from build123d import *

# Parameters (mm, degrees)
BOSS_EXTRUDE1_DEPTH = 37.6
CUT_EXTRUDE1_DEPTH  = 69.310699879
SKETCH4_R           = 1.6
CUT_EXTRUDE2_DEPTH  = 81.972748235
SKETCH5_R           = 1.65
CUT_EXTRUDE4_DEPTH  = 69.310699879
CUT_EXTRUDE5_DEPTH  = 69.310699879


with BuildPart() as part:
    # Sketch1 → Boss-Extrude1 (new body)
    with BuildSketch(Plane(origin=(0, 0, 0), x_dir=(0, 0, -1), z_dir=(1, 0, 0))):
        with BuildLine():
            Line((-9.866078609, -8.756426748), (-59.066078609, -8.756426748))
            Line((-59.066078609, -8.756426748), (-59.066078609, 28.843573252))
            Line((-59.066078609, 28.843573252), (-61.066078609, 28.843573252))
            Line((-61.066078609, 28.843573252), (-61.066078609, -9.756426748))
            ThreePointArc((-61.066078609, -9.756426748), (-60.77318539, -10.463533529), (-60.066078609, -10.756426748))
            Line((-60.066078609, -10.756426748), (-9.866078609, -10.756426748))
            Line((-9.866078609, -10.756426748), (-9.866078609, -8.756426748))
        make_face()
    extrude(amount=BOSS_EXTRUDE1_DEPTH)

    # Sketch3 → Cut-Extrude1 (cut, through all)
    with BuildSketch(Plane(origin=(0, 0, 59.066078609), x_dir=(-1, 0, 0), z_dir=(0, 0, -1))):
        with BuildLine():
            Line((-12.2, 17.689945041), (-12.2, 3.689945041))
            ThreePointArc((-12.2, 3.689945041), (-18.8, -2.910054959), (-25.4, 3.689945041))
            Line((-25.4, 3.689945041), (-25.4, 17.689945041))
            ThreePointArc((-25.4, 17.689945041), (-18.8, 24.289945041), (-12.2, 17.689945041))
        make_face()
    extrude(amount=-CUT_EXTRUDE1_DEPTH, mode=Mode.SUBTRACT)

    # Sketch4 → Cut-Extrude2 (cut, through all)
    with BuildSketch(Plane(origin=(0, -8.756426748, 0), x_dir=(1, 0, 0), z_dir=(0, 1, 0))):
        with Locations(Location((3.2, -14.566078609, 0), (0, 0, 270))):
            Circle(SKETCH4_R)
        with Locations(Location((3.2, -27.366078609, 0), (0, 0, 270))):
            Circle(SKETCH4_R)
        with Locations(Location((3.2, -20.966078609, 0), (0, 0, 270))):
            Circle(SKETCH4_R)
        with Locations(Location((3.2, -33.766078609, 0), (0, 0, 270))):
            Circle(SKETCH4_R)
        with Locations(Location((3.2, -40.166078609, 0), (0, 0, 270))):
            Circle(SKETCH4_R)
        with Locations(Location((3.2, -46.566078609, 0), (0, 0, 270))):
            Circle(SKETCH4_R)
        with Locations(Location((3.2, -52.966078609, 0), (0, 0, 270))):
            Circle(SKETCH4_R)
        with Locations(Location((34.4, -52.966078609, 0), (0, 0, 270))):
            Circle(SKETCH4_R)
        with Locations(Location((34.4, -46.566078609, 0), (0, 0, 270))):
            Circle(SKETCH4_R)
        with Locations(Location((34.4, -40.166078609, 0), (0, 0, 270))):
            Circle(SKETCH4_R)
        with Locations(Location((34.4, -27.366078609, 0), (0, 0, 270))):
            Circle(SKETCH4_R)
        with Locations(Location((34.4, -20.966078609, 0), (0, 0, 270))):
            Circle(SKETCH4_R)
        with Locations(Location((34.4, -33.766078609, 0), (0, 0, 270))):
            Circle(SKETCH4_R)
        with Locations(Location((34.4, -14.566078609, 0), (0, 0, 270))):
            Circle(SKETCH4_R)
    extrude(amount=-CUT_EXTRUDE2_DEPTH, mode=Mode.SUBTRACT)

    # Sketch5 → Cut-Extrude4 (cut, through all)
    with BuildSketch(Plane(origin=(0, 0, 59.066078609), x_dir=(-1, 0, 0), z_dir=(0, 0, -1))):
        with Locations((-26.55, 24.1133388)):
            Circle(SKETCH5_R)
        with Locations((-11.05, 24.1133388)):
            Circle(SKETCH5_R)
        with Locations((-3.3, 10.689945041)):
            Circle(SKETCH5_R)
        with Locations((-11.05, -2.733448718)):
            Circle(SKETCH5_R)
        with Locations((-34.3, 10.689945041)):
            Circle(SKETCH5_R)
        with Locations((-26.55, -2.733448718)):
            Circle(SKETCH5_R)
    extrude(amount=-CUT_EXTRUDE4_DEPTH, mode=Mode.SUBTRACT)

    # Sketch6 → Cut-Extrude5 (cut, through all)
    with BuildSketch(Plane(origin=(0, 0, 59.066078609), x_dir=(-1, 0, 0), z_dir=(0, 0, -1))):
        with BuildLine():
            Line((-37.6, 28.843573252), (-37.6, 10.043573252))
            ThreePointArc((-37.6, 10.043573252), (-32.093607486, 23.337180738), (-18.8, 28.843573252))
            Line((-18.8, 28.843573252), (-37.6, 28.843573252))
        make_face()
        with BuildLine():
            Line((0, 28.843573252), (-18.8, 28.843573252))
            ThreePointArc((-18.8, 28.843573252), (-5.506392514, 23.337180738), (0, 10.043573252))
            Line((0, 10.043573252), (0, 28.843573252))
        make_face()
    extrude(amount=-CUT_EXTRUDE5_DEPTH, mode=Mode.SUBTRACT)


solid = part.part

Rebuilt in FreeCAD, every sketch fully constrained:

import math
import FreeCAD as App
import Part
import Sketcher
from FreeCAD import Vector

doc = App.newDocument("Part")
body = doc.addObject("PartDesign::Body", "Body")

sketch1 = body.newObject("Sketcher::SketchObject", "Sketch")
sketch1.AttachmentSupport = (doc.getObject("YZ_Plane"), [""])
sketch1.MapMode = "FlatFace"
sketch1.addGeometry(Part.LineSegment(Vector(-8.756427, 9.866079, 0), Vector(-8.756427, 59.066079, 0)), False)
sketch1.addGeometry(Part.LineSegment(Vector(-8.756427, 59.066079, 0), Vector(28.843573, 59.066079, 0)), False)
sketch1.addGeometry(Part.LineSegment(Vector(28.843573, 59.066079, 0), Vector(28.843573, 61.066079, 0)), False)
sketch1.addGeometry(Part.LineSegment(Vector(28.843573, 61.066079, 0), Vector(-9.756427, 61.066079, 0)), False)
sketch1.addGeometry(Part.ArcOfCircle(Part.Circle(Vector(-9.756427, 60.066079, 0), Vector(0, 0, 1), 1), math.radians(90), math.radians(180)), False)
sketch1.addGeometry(Part.LineSegment(Vector(-10.756427, 60.066079, 0), Vector(-10.756427, 9.866079, 0)), False)
sketch1.addGeometry(Part.LineSegment(Vector(-10.756427, 9.866079, 0), Vector(-8.756427, 9.866079, 0)), False)
sketch1.addConstraint(Sketcher.Constraint("Coincident", 0, 2, 1, 1))
sketch1.addConstraint(Sketcher.Constraint("Coincident", 1, 2, 2, 1))
sketch1.addConstraint(Sketcher.Constraint("Coincident", 2, 2, 3, 1))
sketch1.addConstraint(Sketcher.Constraint("Tangent", 3, 2, 4, 1))
sketch1.addConstraint(Sketcher.Constraint("Tangent", 4, 2, 5, 1))
sketch1.addConstraint(Sketcher.Constraint("Coincident", 5, 2, 6, 1))
sketch1.addConstraint(Sketcher.Constraint("Coincident", 6, 2, 0, 1))
sketch1.addConstraint(Sketcher.Constraint("Vertical", 0))
sketch1.addConstraint(Sketcher.Constraint("Horizontal", 1))
sketch1.addConstraint(Sketcher.Constraint("Vertical", 2))
sketch1.addConstraint(Sketcher.Constraint("Horizontal", 3))
sketch1.addConstraint(Sketcher.Constraint("Vertical", 5))
sketch1.addConstraint(Sketcher.Constraint("Horizontal", 6))
sketch1.addConstraint(Sketcher.Constraint("Equal", 6, 2))
sketch1.addConstraint(Sketcher.Constraint("Radius", 4, 1.0))
sketch1.addConstraint(Sketcher.Constraint("DistanceX", 6, 1, 6, 2, 2.0))
sketch1.addConstraint(Sketcher.Constraint("DistanceX", 1, 1, 1, 2, 37.6))
sketch1.addConstraint(Sketcher.Constraint("DistanceY", 0, 1, 0, 2, 49.2))
sketch1.addConstraint(Sketcher.Constraint("DistanceY", -1, 1, 4, 3, 60.066079))
sketch1.addConstraint(Sketcher.Constraint("DistanceX", 4, 3, -1, 1, 9.756427))
pad1 = body.newObject("PartDesign::Pad", "Pad")
pad1.Profile = sketch1
pad1.Length = 37.6

sketch2 = body.newObject("Sketcher::SketchObject", "Sketch001")
sketch2.AttachmentSupport = (doc.getObject("XY_Plane"), [""])
sketch2.MapMode = "FlatFace"
sketch2.AttachmentOffset = App.Placement(Vector(0, 0, 59.066079), App.Rotation())
sketch2.addGeometry(Part.LineSegment(Vector(12.2, 3.689945, 0), Vector(12.2, 17.689945, 0)), False)
sketch2.addGeometry(Part.ArcOfCircle(Part.Circle(Vector(18.8, 17.689945, 0), Vector(0, 0, 1), 6.6), math.radians(0), math.radians(180)), False)
sketch2.addGeometry(Part.LineSegment(Vector(25.4, 17.689945, 0), Vector(25.4, 3.689945, 0)), False)
sketch2.addGeometry(Part.ArcOfCircle(Part.Circle(Vector(18.8, 3.689945, 0), Vector(0, 0, 1), 6.6), math.radians(180), math.radians(360)), False)
sketch2.addConstraint(Sketcher.Constraint("Tangent", 0, 2, 1, 2))
sketch2.addConstraint(Sketcher.Constraint("Tangent", 1, 1, 2, 1))
sketch2.addConstraint(Sketcher.Constraint("Tangent", 2, 2, 3, 2))
sketch2.addConstraint(Sketcher.Constraint("Tangent", 3, 1, 0, 1))
sketch2.addConstraint(Sketcher.Constraint("Vertical", 0))
sketch2.addConstraint(Sketcher.Constraint("Vertical", 2))
sketch2.addConstraint(Sketcher.Constraint("Radius", 1, 6.6))
sketch2.addConstraint(Sketcher.Constraint("DistanceY", 0, 1, 0, 2, 14.0))
sketch2.addConstraint(Sketcher.Constraint("DistanceX", -1, 1, 1, 3, 18.8))
sketch2.addConstraint(Sketcher.Constraint("DistanceY", -1, 1, 1, 3, 17.689945))
pocket1 = body.newObject("PartDesign::Pocket", "Pocket")
pocket1.Profile = sketch2
pocket1.Type = "ThroughAll"
pocket1.Reversed = True

sketch3 = body.newObject("Sketcher::SketchObject", "Sketch002")
sketch3.AttachmentSupport = (doc.getObject("XZ_Plane"), [""])
sketch3.MapMode = "FlatFace"
sketch3.AttachmentOffset = App.Placement(Vector(0, 0, 8.756427), App.Rotation())
sketch3.addGeometry(Part.Circle(Vector(3.2, 14.566079, 0), Vector(0, 0, 1), 1.6), False)
sketch3.addGeometry(Part.Circle(Vector(3.2, 27.366079, 0), Vector(0, 0, 1), 1.6), False)
sketch3.addGeometry(Part.Circle(Vector(3.2, 20.966079, 0), Vector(0, 0, 1), 1.6), False)
sketch3.addGeometry(Part.Circle(Vector(3.2, 33.766079, 0), Vector(0, 0, 1), 1.6), False)
sketch3.addGeometry(Part.Circle(Vector(3.2, 40.166079, 0), Vector(0, 0, 1), 1.6), False)
sketch3.addGeometry(Part.Circle(Vector(3.2, 46.566079, 0), Vector(0, 0, 1), 1.6), False)
sketch3.addGeometry(Part.Circle(Vector(3.2, 52.966079, 0), Vector(0, 0, 1), 1.6), False)
sketch3.addGeometry(Part.Circle(Vector(34.4, 52.966079, 0), Vector(0, 0, 1), 1.6), False)
sketch3.addGeometry(Part.Circle(Vector(34.4, 46.566079, 0), Vector(0, 0, 1), 1.6), False)
sketch3.addGeometry(Part.Circle(Vector(34.4, 40.166079, 0), Vector(0, 0, 1), 1.6), False)
sketch3.addGeometry(Part.Circle(Vector(34.4, 27.366079, 0), Vector(0, 0, 1), 1.6), False)
sketch3.addGeometry(Part.Circle(Vector(34.4, 20.966079, 0), Vector(0, 0, 1), 1.6), False)
sketch3.addGeometry(Part.Circle(Vector(34.4, 33.766079, 0), Vector(0, 0, 1), 1.6), False)
sketch3.addGeometry(Part.Circle(Vector(34.4, 14.566079, 0), Vector(0, 0, 1), 1.6), False)
sketch3.addConstraint(Sketcher.Constraint("Equal", 0, 1))
sketch3.addConstraint(Sketcher.Constraint("Equal", 1, 2))
sketch3.addConstraint(Sketcher.Constraint("Equal", 2, 3))
sketch3.addConstraint(Sketcher.Constraint("Equal", 3, 4))
sketch3.addConstraint(Sketcher.Constraint("Equal", 4, 5))
sketch3.addConstraint(Sketcher.Constraint("Equal", 5, 6))
sketch3.addConstraint(Sketcher.Constraint("Equal", 6, 7))
sketch3.addConstraint(Sketcher.Constraint("Equal", 7, 8))
sketch3.addConstraint(Sketcher.Constraint("Equal", 8, 9))
sketch3.addConstraint(Sketcher.Constraint("Equal", 9, 10))
sketch3.addConstraint(Sketcher.Constraint("Equal", 10, 11))
sketch3.addConstraint(Sketcher.Constraint("Equal", 11, 12))
sketch3.addConstraint(Sketcher.Constraint("Equal", 12, 13))
sketch3.addConstraint(Sketcher.Constraint("Horizontal", 6, 3, 7, 3))
sketch3.addConstraint(Sketcher.Constraint("Horizontal", 5, 3, 8, 3))
sketch3.addConstraint(Sketcher.Constraint("Horizontal", 4, 3, 9, 3))
sketch3.addConstraint(Sketcher.Constraint("Horizontal", 1, 3, 10, 3))
sketch3.addConstraint(Sketcher.Constraint("Horizontal", 2, 3, 11, 3))
sketch3.addConstraint(Sketcher.Constraint("Horizontal", 3, 3, 12, 3))
sketch3.addConstraint(Sketcher.Constraint("Horizontal", 0, 3, 13, 3))
sketch3.addConstraint(Sketcher.Constraint("Vertical", 0, 3, 1, 3))
sketch3.addConstraint(Sketcher.Constraint("Vertical", 1, 3, 2, 3))
sketch3.addConstraint(Sketcher.Constraint("Vertical", 2, 3, 3, 3))
sketch3.addConstraint(Sketcher.Constraint("Vertical", 3, 3, 4, 3))
sketch3.addConstraint(Sketcher.Constraint("Vertical", 4, 3, 5, 3))
sketch3.addConstraint(Sketcher.Constraint("Vertical", 5, 3, 6, 3))
sketch3.addConstraint(Sketcher.Constraint("Vertical", 7, 3, 8, 3))
sketch3.addConstraint(Sketcher.Constraint("Vertical", 8, 3, 9, 3))
sketch3.addConstraint(Sketcher.Constraint("Vertical", 9, 3, 10, 3))
sketch3.addConstraint(Sketcher.Constraint("Vertical", 10, 3, 11, 3))
sketch3.addConstraint(Sketcher.Constraint("Vertical", 11, 3, 12, 3))
sketch3.addConstraint(Sketcher.Constraint("Vertical", 12, 3, 13, 3))
sketch3.addConstraint(Sketcher.Constraint("Diameter", 0, 3.2))
sketch3.addConstraint(Sketcher.Constraint("DistanceY", 0, 3, 5, 3, 32.0))
sketch3.addConstraint(Sketcher.Constraint("DistanceY", 2, 3, 6, 3, 32.0))
sketch3.addConstraint(Sketcher.Constraint("DistanceX", -1, 1, 0, 3, 3.2))
sketch3.addConstraint(Sketcher.Constraint("DistanceX", -1, 1, 7, 3, 34.4))
sketch3.addConstraint(Sketcher.Constraint("DistanceY", 0, 3, 1, 3, 12.8))
sketch3.addConstraint(Sketcher.Constraint("DistanceY", 2, 3, 1, 3, 6.4))
sketch3.addConstraint(Sketcher.Constraint("DistanceY", 1, 3, 3, 3, 6.4))
sketch3.addConstraint(Sketcher.Constraint("DistanceY", 3, 3, 4, 3, 6.4))
sketch3.addConstraint(Sketcher.Constraint("DistanceY", -1, 1, 0, 3, 14.566079))
pocket2 = body.newObject("PartDesign::Pocket", "Pocket001")
pocket2.Profile = sketch3
pocket2.Type = "ThroughAll"
pocket2.Reversed = True

sketch4 = body.newObject("Sketcher::SketchObject", "Sketch003")
sketch4.AttachmentSupport = (doc.getObject("XY_Plane"), [""])
sketch4.MapMode = "FlatFace"
sketch4.AttachmentOffset = App.Placement(Vector(0, 0, 59.066079), App.Rotation())
sketch4.addGeometry(Part.Circle(Vector(26.55, 24.113339, 0), Vector(0, 0, 1), 1.65), False)
sketch4.addGeometry(Part.Circle(Vector(11.05, 24.113339, 0), Vector(0, 0, 1), 1.65), False)
sketch4.addGeometry(Part.Circle(Vector(3.3, 10.689945, 0), Vector(0, 0, 1), 1.65), False)
sketch4.addGeometry(Part.Circle(Vector(11.05, -2.733449, 0), Vector(0, 0, 1), 1.65), False)
sketch4.addGeometry(Part.Circle(Vector(34.3, 10.689945, 0), Vector(0, 0, 1), 1.65), False)
sketch4.addGeometry(Part.Circle(Vector(26.55, -2.733449, 0), Vector(0, 0, 1), 1.65), False)
sketch4.addConstraint(Sketcher.Constraint("Equal", 0, 1))
sketch4.addConstraint(Sketcher.Constraint("Equal", 1, 2))
sketch4.addConstraint(Sketcher.Constraint("Equal", 2, 3))
sketch4.addConstraint(Sketcher.Constraint("Equal", 3, 4))
sketch4.addConstraint(Sketcher.Constraint("Equal", 4, 5))
sketch4.addConstraint(Sketcher.Constraint("Horizontal", 0, 3, 1, 3))
sketch4.addConstraint(Sketcher.Constraint("Horizontal", 2, 3, 4, 3))
sketch4.addConstraint(Sketcher.Constraint("Horizontal", 3, 3, 5, 3))
sketch4.addConstraint(Sketcher.Constraint("Vertical", 1, 3, 3, 3))
sketch4.addConstraint(Sketcher.Constraint("Vertical", 0, 3, 5, 3))
sketch4.addConstraint(Sketcher.Constraint("Diameter", 0, 3.3))
sketch4.addConstraint(Sketcher.Constraint("DistanceX", 2, 3, 4, 3, 31.0))
sketch4.addConstraint(Sketcher.Constraint("DistanceX", -1, 1, 2, 3, 3.3))
sketch4.addConstraint(Sketcher.Constraint("DistanceX", 1, 3, 0, 3, 15.5))
sketch4.addConstraint(Sketcher.Constraint("DistanceX", -1, 1, 0, 3, 26.55))
sketch4.addConstraint(Sketcher.Constraint("DistanceY", -1, 1, 0, 3, 24.113339))
sketch4.addConstraint(Sketcher.Constraint("DistanceY", 3, 3, -1, 1, 2.733449))
sketch4.addConstraint(Sketcher.Constraint("DistanceY", -1, 1, 2, 3, 10.689945))
pocket3 = body.newObject("PartDesign::Pocket", "Pocket002")
pocket3.Profile = sketch4
pocket3.Type = "ThroughAll"
pocket3.Reversed = True

sketch5 = body.newObject("Sketcher::SketchObject", "Sketch004")
sketch5.AttachmentSupport = (doc.getObject("XY_Plane"), [""])
sketch5.MapMode = "FlatFace"
sketch5.AttachmentOffset = App.Placement(Vector(0, 0, 59.066079), App.Rotation())
sketch5.addGeometry(Part.LineSegment(Vector(37.6, 28.843573, 0), Vector(37.6, 10.043573, 0)), False)
sketch5.addGeometry(Part.ArcOfCircle(Part.Circle(Vector(18.8, 10.043573, 0), Vector(0, 0, 1), 18.8), math.radians(0), math.radians(90)), False)
sketch5.addGeometry(Part.LineSegment(Vector(18.8, 28.843573, 0), Vector(37.6, 28.843573, 0)), False)
sketch5.addGeometry(Part.LineSegment(Vector(0, 28.843573, 0), Vector(18.8, 28.843573, 0)), False)
sketch5.addGeometry(Part.ArcOfCircle(Part.Circle(Vector(18.8, 10.043573, 0), Vector(0, 0, 1), 18.8), math.radians(90), math.radians(180)), False)
sketch5.addGeometry(Part.LineSegment(Vector(0, 10.043573, 0), Vector(0, 28.843573, 0)), False)
sketch5.addConstraint(Sketcher.Constraint("Tangent", 0, 2, 1, 1))
sketch5.addConstraint(Sketcher.Constraint("Tangent", 1, 2, 2, 1))
sketch5.addConstraint(Sketcher.Constraint("Coincident", 2, 2, 0, 1))
sketch5.addConstraint(Sketcher.Constraint("Tangent", 3, 2, 4, 1))
sketch5.addConstraint(Sketcher.Constraint("Tangent", 4, 2, 5, 1))
sketch5.addConstraint(Sketcher.Constraint("Coincident", 5, 2, 3, 1))
sketch5.addConstraint(Sketcher.Constraint("Vertical", 0))
sketch5.addConstraint(Sketcher.Constraint("Horizontal", 2))
sketch5.addConstraint(Sketcher.Constraint("Horizontal", 3))
sketch5.addConstraint(Sketcher.Constraint("Vertical", 5))
sketch5.addConstraint(Sketcher.Constraint("Coincident", 4, 3, 1, 3))
sketch5.addConstraint(Sketcher.Constraint("Equal", 1, 4))
sketch5.addConstraint(Sketcher.Constraint("PointOnObject", 4, 2, -2))
sketch5.addConstraint(Sketcher.Constraint("Radius", 1, 18.8))
sketch5.addConstraint(Sketcher.Constraint("DistanceY", -1, 1, 1, 3, 10.043573))
pocket4 = body.newObject("PartDesign::Pocket", "Pocket003")
pocket4.Profile = sketch5
pocket4.Type = "ThroughAll"
pocket4.Reversed = True

doc.recompute()
